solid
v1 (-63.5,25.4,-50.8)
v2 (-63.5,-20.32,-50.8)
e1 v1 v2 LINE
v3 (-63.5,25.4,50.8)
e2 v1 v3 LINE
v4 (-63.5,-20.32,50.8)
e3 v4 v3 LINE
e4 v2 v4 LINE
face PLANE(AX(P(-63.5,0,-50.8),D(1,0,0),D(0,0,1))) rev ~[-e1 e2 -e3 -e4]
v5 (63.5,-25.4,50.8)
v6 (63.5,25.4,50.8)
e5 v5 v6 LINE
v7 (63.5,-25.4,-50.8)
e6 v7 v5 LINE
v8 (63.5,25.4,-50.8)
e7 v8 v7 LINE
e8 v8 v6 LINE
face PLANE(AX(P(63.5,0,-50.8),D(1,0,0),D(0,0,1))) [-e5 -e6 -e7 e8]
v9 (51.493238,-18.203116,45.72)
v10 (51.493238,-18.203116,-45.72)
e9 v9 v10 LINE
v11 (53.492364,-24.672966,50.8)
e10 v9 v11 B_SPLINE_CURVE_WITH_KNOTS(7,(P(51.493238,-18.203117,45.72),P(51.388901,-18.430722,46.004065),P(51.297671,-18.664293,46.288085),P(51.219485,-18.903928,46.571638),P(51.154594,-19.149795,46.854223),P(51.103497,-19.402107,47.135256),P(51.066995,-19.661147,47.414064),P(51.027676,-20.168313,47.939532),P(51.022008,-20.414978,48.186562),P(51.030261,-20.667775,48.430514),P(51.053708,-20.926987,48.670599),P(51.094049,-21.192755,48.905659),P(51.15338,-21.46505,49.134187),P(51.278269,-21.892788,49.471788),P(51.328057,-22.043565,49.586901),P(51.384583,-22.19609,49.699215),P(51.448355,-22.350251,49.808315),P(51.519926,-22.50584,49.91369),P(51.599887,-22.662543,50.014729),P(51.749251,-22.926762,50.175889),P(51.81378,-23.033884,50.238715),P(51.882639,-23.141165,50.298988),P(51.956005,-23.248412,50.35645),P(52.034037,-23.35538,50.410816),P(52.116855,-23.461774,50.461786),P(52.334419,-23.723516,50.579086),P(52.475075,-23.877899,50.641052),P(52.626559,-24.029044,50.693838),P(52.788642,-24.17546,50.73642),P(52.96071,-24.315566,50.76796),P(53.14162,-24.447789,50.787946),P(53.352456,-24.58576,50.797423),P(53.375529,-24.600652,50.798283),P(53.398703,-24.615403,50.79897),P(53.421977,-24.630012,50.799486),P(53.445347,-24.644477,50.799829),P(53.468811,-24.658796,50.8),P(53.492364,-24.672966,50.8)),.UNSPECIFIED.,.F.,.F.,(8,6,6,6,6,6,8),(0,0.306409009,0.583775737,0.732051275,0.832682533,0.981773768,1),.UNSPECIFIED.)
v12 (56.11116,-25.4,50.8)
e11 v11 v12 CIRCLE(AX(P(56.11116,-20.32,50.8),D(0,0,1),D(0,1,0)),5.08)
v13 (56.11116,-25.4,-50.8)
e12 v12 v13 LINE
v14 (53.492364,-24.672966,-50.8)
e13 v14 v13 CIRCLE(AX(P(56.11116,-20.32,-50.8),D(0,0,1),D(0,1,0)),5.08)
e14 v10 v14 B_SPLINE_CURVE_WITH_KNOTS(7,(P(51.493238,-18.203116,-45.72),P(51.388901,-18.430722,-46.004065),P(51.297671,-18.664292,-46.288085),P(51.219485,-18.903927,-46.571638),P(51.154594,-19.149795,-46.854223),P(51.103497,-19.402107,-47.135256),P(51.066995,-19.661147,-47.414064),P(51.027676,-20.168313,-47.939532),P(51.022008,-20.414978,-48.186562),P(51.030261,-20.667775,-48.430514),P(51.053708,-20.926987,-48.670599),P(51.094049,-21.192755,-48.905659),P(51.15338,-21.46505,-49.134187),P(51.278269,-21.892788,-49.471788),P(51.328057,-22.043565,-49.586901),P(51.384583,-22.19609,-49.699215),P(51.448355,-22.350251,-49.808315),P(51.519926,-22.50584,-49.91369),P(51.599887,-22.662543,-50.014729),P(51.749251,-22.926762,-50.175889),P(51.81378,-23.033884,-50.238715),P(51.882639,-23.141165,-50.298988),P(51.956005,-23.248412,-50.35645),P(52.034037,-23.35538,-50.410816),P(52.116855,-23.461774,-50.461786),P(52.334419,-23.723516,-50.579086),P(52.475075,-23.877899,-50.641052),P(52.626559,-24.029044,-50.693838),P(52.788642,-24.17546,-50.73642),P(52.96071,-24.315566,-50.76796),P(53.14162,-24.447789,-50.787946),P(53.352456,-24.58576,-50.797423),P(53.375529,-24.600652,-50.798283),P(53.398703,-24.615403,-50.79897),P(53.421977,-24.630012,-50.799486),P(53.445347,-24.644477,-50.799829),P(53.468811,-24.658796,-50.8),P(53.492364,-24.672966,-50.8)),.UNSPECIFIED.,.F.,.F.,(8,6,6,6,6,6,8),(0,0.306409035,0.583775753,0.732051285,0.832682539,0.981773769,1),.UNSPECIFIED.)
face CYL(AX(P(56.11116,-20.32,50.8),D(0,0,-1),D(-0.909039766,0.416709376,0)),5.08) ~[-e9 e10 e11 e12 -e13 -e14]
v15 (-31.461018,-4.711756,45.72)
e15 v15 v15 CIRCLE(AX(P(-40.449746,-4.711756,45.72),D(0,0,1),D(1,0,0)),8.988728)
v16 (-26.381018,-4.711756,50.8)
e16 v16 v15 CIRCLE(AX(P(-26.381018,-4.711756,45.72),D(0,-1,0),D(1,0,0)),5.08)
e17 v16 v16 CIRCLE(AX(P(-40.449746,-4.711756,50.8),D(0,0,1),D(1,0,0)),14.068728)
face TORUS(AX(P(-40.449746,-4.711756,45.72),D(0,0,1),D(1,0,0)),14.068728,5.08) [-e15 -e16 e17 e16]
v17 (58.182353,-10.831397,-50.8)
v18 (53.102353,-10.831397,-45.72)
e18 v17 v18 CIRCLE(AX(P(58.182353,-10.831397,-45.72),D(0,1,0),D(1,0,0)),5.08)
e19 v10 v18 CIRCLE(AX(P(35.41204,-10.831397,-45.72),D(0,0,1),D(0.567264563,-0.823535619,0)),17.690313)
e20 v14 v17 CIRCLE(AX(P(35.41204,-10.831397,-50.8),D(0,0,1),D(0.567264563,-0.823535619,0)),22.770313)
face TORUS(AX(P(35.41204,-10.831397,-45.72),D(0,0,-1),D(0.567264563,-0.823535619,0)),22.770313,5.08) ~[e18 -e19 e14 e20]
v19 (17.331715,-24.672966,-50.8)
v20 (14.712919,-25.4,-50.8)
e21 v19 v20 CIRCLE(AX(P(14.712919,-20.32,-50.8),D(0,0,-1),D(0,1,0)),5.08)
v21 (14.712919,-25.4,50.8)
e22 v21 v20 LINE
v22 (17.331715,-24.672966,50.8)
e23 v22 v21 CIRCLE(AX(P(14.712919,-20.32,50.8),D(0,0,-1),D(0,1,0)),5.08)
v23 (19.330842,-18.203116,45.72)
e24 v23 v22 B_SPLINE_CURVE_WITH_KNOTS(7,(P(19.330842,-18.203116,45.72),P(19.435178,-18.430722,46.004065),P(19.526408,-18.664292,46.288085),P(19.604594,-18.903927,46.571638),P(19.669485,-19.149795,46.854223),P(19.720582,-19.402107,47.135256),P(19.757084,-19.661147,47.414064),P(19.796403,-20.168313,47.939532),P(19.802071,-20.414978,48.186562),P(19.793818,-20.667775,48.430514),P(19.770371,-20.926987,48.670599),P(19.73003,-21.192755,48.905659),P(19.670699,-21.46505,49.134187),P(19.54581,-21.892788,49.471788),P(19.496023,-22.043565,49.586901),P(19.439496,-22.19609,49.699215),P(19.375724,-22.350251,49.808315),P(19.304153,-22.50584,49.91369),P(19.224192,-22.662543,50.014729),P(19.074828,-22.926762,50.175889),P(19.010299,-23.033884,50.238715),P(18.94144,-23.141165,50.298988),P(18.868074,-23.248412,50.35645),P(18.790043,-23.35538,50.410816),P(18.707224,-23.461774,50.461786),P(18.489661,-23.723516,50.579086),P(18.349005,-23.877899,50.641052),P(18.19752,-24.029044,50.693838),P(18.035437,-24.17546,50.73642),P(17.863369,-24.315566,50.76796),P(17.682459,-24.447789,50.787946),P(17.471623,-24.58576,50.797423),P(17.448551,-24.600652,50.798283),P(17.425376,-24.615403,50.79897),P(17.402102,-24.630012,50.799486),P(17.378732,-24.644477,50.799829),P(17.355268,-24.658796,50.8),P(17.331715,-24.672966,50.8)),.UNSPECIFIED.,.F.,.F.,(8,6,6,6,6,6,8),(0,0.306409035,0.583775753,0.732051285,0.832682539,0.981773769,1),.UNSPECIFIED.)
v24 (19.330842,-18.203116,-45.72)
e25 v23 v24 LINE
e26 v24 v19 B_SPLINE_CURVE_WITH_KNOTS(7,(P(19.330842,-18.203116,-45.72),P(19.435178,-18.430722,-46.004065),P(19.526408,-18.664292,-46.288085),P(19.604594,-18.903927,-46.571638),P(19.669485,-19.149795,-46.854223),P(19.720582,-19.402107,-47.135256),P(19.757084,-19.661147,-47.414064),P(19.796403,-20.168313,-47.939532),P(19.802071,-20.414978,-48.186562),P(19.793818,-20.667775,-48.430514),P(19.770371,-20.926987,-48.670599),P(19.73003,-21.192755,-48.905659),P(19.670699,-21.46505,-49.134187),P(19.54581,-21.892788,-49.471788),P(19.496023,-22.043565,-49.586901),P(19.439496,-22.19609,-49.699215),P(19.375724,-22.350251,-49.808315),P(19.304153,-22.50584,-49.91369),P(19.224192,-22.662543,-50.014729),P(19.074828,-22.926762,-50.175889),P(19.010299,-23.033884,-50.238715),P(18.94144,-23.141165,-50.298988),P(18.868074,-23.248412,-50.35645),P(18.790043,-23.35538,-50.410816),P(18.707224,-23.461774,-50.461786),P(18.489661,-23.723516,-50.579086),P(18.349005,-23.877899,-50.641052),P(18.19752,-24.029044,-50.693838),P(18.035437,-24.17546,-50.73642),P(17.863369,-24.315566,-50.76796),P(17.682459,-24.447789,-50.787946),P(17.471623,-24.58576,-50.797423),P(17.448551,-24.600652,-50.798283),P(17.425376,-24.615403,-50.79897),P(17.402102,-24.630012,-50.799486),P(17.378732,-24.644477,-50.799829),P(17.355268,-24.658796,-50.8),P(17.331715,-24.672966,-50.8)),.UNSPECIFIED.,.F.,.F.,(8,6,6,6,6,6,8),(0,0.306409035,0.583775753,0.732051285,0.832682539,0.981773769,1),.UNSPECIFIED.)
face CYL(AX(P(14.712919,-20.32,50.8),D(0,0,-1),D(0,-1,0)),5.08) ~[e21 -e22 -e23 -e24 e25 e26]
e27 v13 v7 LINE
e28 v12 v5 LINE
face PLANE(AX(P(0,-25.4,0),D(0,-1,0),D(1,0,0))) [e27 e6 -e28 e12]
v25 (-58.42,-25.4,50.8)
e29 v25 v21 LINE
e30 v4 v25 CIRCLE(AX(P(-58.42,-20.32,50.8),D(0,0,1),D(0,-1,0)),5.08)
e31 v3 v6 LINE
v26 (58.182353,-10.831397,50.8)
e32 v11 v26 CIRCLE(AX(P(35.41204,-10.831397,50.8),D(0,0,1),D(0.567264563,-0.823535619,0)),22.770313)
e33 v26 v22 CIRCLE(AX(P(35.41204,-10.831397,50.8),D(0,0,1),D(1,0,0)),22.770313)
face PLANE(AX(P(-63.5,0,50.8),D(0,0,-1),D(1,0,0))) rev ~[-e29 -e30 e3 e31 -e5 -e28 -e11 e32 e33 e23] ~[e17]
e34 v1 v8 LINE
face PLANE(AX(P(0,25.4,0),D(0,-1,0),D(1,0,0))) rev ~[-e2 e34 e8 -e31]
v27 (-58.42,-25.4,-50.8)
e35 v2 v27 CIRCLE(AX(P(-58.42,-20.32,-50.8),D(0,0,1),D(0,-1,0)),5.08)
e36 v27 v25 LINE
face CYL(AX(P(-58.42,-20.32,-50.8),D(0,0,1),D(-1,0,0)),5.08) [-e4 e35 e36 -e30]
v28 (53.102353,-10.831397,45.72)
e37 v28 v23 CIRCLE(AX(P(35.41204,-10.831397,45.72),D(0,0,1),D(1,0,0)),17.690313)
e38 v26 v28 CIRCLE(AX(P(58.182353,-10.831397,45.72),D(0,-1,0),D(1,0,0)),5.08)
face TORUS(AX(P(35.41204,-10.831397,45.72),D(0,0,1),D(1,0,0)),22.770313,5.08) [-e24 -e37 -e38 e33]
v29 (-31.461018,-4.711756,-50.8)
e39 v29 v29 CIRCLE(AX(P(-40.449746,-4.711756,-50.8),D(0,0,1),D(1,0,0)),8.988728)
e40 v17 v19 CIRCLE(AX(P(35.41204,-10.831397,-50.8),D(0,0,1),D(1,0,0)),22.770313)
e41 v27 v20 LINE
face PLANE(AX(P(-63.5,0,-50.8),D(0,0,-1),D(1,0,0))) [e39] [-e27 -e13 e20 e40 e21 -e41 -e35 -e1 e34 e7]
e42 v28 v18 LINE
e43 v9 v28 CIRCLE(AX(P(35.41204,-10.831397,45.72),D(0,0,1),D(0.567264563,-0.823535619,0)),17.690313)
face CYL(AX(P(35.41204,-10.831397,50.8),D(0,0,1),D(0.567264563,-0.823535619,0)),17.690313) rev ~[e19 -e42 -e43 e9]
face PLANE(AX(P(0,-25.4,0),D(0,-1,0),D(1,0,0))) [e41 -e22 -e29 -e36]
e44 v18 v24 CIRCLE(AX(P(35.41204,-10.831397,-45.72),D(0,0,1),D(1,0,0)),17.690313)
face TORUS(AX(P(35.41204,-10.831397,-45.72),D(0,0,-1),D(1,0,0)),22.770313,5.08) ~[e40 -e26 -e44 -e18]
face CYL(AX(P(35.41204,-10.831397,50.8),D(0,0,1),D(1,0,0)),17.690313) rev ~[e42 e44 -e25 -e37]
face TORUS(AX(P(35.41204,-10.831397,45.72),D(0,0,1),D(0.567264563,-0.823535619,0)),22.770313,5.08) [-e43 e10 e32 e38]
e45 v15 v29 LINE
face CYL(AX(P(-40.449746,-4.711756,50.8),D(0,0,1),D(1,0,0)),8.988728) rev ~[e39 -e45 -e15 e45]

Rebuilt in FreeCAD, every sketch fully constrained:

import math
import FreeCAD as App
import Part
import Sketcher
from FreeCAD import Vector
Q = App.Units.Quantity


def edges_at(feature, points):
    """Names of the edges that pass closest to the given points."""
    edges = feature.Shape.Edges
    near = lambda p: min(range(len(edges)), key=lambda i: edges[i].distToShape(Part.Vertex(*p))[0])
    return sorted({f"Edge{near(p) + 1}" for p in points})

doc = App.newDocument("Part")
body = doc.addObject("PartDesign::Body", "Body")

# Sketch on XZ plane
sketch1 = body.newObject("Sketcher::SketchObject", "Sketch")
sketch1.AttachmentSupport = (doc.getObject("XZ_Plane"), [""])
sketch1.MapMode = "FlatFace"
sketch1.addGeometry([
    Part.LineSegment(Vector(-64, 51, 0), Vector(-64, -51, 0)),
    Part.LineSegment(Vector(-64, -51, 0), Vector(64, -51, 0)),
    Part.LineSegment(Vector(64, -51, 0), Vector(64, 51, 0)),
    Part.LineSegment(Vector(64, 51, 0), Vector(-64, 51, 0)),
], False)
sketch1.addConstraint([
    Sketcher.Constraint("Coincident", 0, 2, 1, 1),
    Sketcher.Constraint("Coincident", 1, 2, 2, 1),
    Sketcher.Constraint("Coincident", 2, 2, 3, 1),
    Sketcher.Constraint("Coincident", 3, 2, 0, 1),
    Sketcher.Constraint("Vertical", 0),
    Sketcher.Constraint("Horizontal", 1),
    Sketcher.Constraint("Vertical", 2),
    Sketcher.Constraint("Horizontal", 3),
    Sketcher.Constraint("Symmetric", 0, 2, 2, 2, -1, 1),
    Sketcher.Constraint("DistanceX", 1, 1, 1, 2, Q("5 in")),
    Sketcher.Constraint("DistanceY", 0, 2, 0, 1, Q("4 in")),
])
pad1 = body.newObject("PartDesign::Pad", "Pad")
pad1.Profile = sketch1
pad1.Length = Q("2 in")
pad1.Midplane = True

# Sketch on XY plane
sketch2 = body.newObject("Sketcher::SketchObject", "Sketch001")
sketch2.AttachmentSupport = (doc.getObject("XY_Plane"), [""])
sketch2.MapMode = "FlatFace"
sketch2.AttachmentOffset = App.Placement(Vector(0, 0, 2 * 25.4), App.Rotation())
sketch2.addGeometry([
    Part.Circle(Vector(-40, -5, 0), Vector(0, 0, 1), 9),
    Part.ArcOfCircle(Part.Circle(Vector(35, -11, 0), Vector(0, 0, 1), 18), math.radians(-55), math.radians(0)),
    Part.ArcOfCircle(Part.Circle(Vector(35, -11, 0), Vector(0, 0, 1), 18), math.radians(0), math.radians(235)),
    Part.LineSegment(Vector(25, -25, 0), Vector(45, -25, 0)),
], False)
sketch2.addConstraint([
    Sketcher.Constraint("Tangent", 1, 2, 2, 1),
    Sketcher.Constraint("Coincident", 2, 2, 3, 1),
    Sketcher.Constraint("Coincident", 3, 2, 1, 1),
    Sketcher.Constraint("Horizontal", 3),
    Sketcher.Constraint("Equal", 1, 2),
    Sketcher.Constraint("Horizontal", 2, 3, 1, 2),
    Sketcher.Constraint("DistanceY", 2, 2, -1, 1, Q("1 in")),
    Sketcher.Constraint("Diameter", 0, Q("17.977456 mm")),
    Sketcher.Constraint("Radius", 1, Q("17.690313 mm")),
    Sketcher.Constraint("DistanceX", 0, 3, 1, 2, Q("93.552099 mm")),
    Sketcher.Constraint("DistanceX", 2, 2, 1, 2, Q("27.725401 mm")),
    Sketcher.Constraint("DistanceX", -1, 1, 1, 3, Q("35.41204 mm")),
    Sketcher.Constraint("DistanceY", 1, 3, 0, 3, Q("6.119641 mm")),
])
pocket1 = body.newObject("PartDesign::Pocket", "Pocket")
pocket1.Profile = sketch2
pocket1.Type = "ThroughAll"
doc.recompute()

fillet = body.newObject("PartDesign::Fillet", "Fillet")
fillet.Base = (pocket1, edges_at(pocket1, [
    (25.377, -25.4, 0),
    (45.447, -25.4, 0),
    (-63.5, -25.4, 0),
    (-49.438, -4.712, 50.8),
    (27.183, 4.829, 50.8),
    (27.183, 4.829, -50.8),
]))
fillet.Radius = Q("0.2 in")

doc.recompute()
